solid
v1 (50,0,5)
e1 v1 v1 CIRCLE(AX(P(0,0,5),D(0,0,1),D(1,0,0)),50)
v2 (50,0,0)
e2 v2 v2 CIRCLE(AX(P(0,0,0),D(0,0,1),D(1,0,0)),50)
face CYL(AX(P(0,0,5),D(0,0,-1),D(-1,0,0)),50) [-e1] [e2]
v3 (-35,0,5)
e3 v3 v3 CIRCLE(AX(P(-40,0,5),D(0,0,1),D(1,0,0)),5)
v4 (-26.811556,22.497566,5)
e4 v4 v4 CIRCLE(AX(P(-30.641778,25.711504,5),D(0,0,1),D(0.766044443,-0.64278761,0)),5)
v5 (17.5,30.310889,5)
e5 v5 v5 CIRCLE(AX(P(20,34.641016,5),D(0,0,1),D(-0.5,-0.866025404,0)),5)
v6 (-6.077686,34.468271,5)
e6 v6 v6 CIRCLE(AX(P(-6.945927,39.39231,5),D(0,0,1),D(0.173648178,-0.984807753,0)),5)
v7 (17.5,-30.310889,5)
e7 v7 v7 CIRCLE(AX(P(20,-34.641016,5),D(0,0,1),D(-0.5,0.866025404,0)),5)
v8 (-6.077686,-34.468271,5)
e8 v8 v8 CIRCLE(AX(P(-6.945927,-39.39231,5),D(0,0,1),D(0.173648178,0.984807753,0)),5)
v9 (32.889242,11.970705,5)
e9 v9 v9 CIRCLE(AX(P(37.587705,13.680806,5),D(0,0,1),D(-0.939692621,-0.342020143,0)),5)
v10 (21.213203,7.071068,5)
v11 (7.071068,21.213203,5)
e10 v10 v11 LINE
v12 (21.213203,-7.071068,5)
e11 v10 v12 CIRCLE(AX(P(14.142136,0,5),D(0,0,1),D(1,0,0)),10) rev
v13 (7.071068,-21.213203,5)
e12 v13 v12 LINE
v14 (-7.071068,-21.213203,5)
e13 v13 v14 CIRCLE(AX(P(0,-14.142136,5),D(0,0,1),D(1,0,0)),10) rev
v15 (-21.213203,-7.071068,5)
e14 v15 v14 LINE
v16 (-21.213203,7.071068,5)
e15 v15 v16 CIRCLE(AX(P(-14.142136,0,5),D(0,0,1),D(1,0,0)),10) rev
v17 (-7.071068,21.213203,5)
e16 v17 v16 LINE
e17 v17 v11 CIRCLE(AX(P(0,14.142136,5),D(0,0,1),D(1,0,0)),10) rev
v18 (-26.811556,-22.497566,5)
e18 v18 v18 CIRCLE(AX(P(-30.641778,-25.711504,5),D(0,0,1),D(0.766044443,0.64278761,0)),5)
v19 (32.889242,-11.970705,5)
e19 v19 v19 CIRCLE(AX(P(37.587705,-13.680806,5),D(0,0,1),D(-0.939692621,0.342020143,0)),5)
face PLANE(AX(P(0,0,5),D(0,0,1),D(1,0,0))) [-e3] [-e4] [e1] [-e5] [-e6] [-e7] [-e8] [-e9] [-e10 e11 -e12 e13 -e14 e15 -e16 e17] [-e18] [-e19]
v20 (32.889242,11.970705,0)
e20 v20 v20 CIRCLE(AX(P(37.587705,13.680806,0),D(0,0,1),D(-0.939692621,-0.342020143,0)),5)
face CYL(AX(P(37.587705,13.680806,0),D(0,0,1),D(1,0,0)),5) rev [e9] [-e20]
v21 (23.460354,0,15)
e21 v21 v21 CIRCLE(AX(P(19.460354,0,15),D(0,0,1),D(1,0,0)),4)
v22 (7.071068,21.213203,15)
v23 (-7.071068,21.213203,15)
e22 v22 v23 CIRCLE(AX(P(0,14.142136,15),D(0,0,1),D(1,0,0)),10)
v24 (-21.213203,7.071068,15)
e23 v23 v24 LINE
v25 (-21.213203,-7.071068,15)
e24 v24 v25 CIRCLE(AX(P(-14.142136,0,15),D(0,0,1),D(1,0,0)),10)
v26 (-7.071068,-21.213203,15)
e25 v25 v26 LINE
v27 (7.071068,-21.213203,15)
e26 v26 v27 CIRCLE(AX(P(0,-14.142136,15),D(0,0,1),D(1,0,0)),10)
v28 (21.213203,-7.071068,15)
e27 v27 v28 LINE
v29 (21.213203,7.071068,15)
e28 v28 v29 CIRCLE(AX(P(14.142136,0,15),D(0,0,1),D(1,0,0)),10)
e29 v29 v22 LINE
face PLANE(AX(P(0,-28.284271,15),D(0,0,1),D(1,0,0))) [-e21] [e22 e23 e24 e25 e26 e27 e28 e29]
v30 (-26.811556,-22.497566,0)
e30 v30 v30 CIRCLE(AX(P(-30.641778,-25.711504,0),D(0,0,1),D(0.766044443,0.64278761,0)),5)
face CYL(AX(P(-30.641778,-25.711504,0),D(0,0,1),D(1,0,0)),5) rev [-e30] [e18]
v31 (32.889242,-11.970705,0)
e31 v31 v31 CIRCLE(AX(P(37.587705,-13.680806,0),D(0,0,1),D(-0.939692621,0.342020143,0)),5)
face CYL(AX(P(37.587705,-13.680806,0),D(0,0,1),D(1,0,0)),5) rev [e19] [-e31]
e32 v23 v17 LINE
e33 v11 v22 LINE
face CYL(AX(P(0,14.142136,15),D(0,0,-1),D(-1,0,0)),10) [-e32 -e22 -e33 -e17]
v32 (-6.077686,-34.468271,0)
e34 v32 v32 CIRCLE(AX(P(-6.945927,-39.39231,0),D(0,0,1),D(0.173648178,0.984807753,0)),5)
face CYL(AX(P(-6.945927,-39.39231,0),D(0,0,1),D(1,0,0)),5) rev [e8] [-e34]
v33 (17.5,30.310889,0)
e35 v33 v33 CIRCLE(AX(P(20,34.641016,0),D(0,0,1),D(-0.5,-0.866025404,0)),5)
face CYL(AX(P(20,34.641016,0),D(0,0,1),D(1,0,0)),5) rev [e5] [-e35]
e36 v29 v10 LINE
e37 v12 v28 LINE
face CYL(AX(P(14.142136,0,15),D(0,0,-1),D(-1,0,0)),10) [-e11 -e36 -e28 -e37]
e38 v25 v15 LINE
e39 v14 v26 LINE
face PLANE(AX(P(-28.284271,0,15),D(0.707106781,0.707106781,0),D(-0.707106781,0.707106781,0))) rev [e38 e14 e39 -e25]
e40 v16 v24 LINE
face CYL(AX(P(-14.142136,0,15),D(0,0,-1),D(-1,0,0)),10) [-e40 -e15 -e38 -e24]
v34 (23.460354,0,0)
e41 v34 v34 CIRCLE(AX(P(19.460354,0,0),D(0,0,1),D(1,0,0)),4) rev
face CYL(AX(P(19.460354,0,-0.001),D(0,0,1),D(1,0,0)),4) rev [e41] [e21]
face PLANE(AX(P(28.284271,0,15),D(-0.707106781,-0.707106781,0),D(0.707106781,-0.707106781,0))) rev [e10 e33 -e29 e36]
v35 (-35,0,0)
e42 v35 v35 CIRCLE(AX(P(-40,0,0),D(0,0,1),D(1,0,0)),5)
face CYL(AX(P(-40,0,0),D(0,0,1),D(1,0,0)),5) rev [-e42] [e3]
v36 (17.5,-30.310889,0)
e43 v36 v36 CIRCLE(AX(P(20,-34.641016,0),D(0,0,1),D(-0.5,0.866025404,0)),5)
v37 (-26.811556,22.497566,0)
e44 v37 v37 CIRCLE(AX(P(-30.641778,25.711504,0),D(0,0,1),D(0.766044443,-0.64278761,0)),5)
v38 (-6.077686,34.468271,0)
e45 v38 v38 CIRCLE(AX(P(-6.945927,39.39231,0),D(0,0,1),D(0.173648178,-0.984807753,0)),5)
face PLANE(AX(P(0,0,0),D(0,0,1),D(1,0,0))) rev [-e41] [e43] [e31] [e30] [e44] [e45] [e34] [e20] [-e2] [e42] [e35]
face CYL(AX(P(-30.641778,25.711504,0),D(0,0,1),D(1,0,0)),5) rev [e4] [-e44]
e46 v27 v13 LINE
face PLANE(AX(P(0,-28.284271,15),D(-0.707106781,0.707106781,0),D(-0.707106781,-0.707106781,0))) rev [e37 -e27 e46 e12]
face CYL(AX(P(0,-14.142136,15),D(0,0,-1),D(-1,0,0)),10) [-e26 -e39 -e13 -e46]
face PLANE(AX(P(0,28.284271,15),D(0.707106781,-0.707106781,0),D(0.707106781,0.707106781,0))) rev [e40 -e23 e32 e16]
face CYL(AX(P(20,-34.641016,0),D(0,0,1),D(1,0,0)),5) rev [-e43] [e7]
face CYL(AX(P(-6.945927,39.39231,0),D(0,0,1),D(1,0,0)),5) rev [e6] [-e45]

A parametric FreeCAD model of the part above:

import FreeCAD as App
import Part
import Sketcher

V = App.Vector
Q = App.Units.Quantity


def edges_at(feature, points):
    """Names of the edges that pass closest to the given points."""
    edges = feature.Shape.Edges
    near = lambda p: min(range(len(edges)), key=lambda i: edges[i].distToShape(Part.Vertex(*p))[0])
    return sorted({f"Edge{near(p) + 1}" for p in points})


def add_polygon(sketch, points):
    """Adds a closed chain of lines whose ends are joined by coincident constraints."""
    first, n = sketch.GeometryCount, len(points)
    for a, b in zip(points, points[1:] + points[:1]):
        sketch.addGeometry(Part.LineSegment(App.Vector(*a, 0), App.Vector(*b, 0)), False)
    for i in range(n):
        sketch.addConstraint(Sketcher.Constraint("Coincident", first + i, 2, first + (i + 1) % n, 1))

doc = App.newDocument("Part")
body = doc.addObject("PartDesign::Body", "Body")

# Sketch on XY plane
sketch1 = doc.addObject("Sketcher::SketchObject", "Sketch")
body.addObject(sketch1)
sketch1.AttachmentSupport = (doc.XY_Plane, [""])
sketch1.MapMode = "FlatFace"
sketch1.addGeometry(Part.Circle(V(0, 0, 0), V(0, 0, 1), 50), False)
sketch1.addConstraint([
    Sketcher.Constraint("Coincident", 0, 3, -1, 1),
    Sketcher.Constraint("Diameter", 0, Q("100 mm")),
])
pad1 = doc.addObject("PartDesign::Pad", "Pad")
body.addObject(pad1)
pad1.Profile = sketch1
pad1.Length = 5

# Sketch on XY plane
sketch2 = doc.addObject("Sketcher::SketchObject", "Sketch001")
body.addObject(sketch2)
sketch2.AttachmentSupport = (doc.XY_Plane, [""])
sketch2.MapMode = "FlatFace"
sketch2.AttachmentOffset = App.Placement(V(0, 0, 5), App.Rotation())
sketch2.addGeometry(Part.Circle(V(-40, 0, 0), V(0, 0, 1), 5), False)
sketch2.addConstraint([
    Sketcher.Constraint("PointOnObject", 0, 3, -1),
    Sketcher.Constraint("Diameter", 0, Q("10 mm")),
    Sketcher.Constraint("DistanceX", 0, 3, -1, 1, Q("40 mm")),
])
pocket1 = doc.addObject("PartDesign::Pocket", "Pocket")
body.addObject(pocket1)
pocket1.Profile = sketch2
pocket1.Type = "ThroughAll"
doc.recompute()

polarpattern = doc.addObject("PartDesign::PolarPattern", "PolarPattern")
body.addObject(polarpattern)
polarpattern.Originals = [pocket1]
polarpattern.Axis = (doc.Z_Axis, [""])
polarpattern.Angle = 360
polarpattern.Occurrences = 9
body.Tip = polarpattern

# Sketch on XY plane
sketch3 = doc.addObject("Sketcher::SketchObject", "Sketch002")
body.addObject(sketch3)
sketch3.AttachmentSupport = (doc.XY_Plane, [""])
sketch3.MapMode = "FlatFace"
sketch3.AttachmentOffset = App.Placement(V(0, 0, 5), App.Rotation())
add_polygon(sketch3, [(0, 28.284271), (-28.284271, 0), (0, -28.284271), (28.284271, 0)])  # lines 0-3
sketch3.addConstraint([
    Sketcher.Constraint("Symmetric", 0, 2, 2, 2, -1, 1),
    Sketcher.Constraint("Symmetric", 1, 2, 3, 2, -1, 1),
    Sketcher.Constraint("PointOnObject", 0, 2, -1),
    Sketcher.Constraint("PointOnObject", 1, 2, -2),
    Sketcher.Constraint("Perpendicular", 0, 1),
    Sketcher.Constraint("Distance", 0, Q("40 mm")),
])
pad2 = doc.addObject("PartDesign::Pad", "Pad001")
body.addObject(pad2)
pad2.Profile = sketch3
pad2.Length = 10
doc.recompute()

fillet = doc.addObject("PartDesign::Fillet", "Fillet")
body.addObject(fillet)
fillet.Base = (pad2, edges_at(pad2, [
    (-28.284, 0, 10),
    (0, -28.284, 10),
    (28.284, 0, 10),
    (0, 28.284, 10),
]))
fillet.Radius = 10

# Sketch on XY plane
sketch4 = doc.addObject("Sketcher::SketchObject", "Sketch003")
body.addObject(sketch4)
sketch4.AttachmentSupport = (doc.XY_Plane, [""])
sketch4.MapMode = "FlatFace"
sketch4.AttachmentOffset = App.Placement(V(0, 0, 15), App.Rotation())
sketch4.addGeometry(Part.Circle(V(19.460354, 0, 0), V(0, 0, 1), 4), False)
sketch4.addConstraint([
    Sketcher.Constraint("PointOnObject", 0, 3, -1),
    Sketcher.Constraint("Diameter", 0, Q("8 mm")),
    Sketcher.Constraint("DistanceX", -1, 1, 0, 3, Q("19.460354 mm")),
])
pocket2 = doc.addObject("PartDesign::Pocket", "Pocket001")
body.addObject(pocket2)
pocket2.Profile = sketch4
pocket2.Type = "UpToFirst"

doc.recompute()
